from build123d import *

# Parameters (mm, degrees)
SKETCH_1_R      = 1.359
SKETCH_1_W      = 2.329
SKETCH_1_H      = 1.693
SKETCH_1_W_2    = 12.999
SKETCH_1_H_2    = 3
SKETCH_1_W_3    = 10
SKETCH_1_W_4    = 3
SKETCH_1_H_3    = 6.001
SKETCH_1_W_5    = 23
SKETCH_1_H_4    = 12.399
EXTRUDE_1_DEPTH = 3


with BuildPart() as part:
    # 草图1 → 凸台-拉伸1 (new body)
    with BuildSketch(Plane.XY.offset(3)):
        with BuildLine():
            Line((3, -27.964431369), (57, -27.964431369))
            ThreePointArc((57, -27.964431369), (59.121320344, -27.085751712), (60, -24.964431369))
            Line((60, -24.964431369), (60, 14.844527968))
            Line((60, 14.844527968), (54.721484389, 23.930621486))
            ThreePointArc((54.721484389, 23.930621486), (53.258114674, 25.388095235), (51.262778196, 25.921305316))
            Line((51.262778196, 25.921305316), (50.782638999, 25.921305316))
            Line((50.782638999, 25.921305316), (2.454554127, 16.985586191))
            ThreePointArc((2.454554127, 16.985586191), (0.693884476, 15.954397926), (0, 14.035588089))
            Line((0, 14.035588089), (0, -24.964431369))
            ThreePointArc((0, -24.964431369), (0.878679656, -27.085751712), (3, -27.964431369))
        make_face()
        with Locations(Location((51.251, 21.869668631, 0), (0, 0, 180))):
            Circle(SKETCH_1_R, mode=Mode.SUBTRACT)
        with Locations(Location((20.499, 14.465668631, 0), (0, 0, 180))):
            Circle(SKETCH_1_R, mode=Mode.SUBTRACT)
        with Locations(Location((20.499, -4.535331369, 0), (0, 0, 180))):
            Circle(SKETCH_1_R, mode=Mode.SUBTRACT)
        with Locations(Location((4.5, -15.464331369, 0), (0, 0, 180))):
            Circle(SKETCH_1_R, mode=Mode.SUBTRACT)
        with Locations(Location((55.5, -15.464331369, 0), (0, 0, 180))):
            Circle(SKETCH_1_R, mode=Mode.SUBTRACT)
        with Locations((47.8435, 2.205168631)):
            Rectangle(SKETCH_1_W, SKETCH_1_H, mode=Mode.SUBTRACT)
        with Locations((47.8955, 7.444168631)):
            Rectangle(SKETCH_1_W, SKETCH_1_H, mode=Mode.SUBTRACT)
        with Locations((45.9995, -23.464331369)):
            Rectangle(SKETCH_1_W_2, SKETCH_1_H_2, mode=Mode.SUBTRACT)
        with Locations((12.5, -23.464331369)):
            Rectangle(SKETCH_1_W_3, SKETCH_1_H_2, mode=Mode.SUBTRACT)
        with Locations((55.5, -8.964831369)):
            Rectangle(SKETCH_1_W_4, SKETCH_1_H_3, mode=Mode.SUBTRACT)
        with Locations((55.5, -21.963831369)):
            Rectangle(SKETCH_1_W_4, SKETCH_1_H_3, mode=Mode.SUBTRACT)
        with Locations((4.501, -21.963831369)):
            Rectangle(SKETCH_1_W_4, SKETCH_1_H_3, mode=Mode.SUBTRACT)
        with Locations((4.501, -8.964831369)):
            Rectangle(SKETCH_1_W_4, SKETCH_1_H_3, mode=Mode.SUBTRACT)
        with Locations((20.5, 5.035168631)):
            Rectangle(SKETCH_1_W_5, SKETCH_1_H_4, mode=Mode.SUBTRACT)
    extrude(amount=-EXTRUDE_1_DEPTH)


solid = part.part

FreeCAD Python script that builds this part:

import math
import FreeCAD as App
import Part
import Sketcher

V = App.Vector
Q = App.Units.Quantity

doc = App.newDocument("Part")
body = doc.addObject("PartDesign::Body", "Body")

sketch1 = body.newObject("Sketcher::SketchObject", "Sketch")
sketch1.AttachmentSupport = (doc.getObject("XY_Plane"), [""])
sketch1.MapMode = "FlatFace"
sketch1.AttachmentOffset = App.Placement(V(0, 0, 3), App.Rotation())
sketch1.addGeometry([
    Part.LineSegment(V(3, -27.964431, 0), V(57, -27.964431, 0)),
    Part.ArcOfCircle(Part.Circle(V(57, -24.964431, 0), V(0, 0, 1), 3), math.radians(-90), math.radians(0)),
    Part.LineSegment(V(60, -24.964431, 0), V(60, 14.844528, 0)),
    Part.LineSegment(V(60, 14.844528, 0), V(54.721484, 23.930621, 0)),
    Part.ArcOfCircle(Part.Circle(V(51.262778, 21.921305, 0), V(0, 0, 1), 4), math.radians(30.154208), math.radians(90)),
    Part.LineSegment(V(51.262778, 25.921305, 0), V(50.782639, 25.921305, 0)),
    Part.LineSegment(V(50.782639, 25.921305, 0), V(2.454554, 16.985586, 0)),
    Part.ArcOfCircle(Part.Circle(V(3, 14.035588, 0), V(0, 0, 1), 3), math.radians(100.475513), math.radians(180)),
    Part.LineSegment(V(0, 14.035588, 0), V(0, -24.964431, 0)),
    Part.ArcOfCircle(Part.Circle(V(3, -24.964431, 0), V(0, 0, 1), 3), math.radians(180), math.radians(270)),
    Part.LineSegment(V(6.001, -24.964331, 0), V(3.001, -24.964331, 0)),
    Part.LineSegment(V(3.001, -24.964331, 0), V(3.001, -18.963331, 0)),
    Part.LineSegment(V(3.001, -18.963331, 0), V(6.001, -18.963331, 0)),
    Part.LineSegment(V(6.001, -18.963331, 0), V(6.001, -24.964331, 0)),
    Part.LineSegment(V(17.5, -24.964331, 0), V(7.5, -24.964331, 0)),
    Part.LineSegment(V(7.5, -24.964331, 0), V(7.5, -21.964331, 0)),
    Part.LineSegment(V(7.5, -21.964331, 0), V(17.5, -21.964331, 0)),
    Part.LineSegment(V(17.5, -21.964331, 0), V(17.5, -24.964331, 0)),
    Part.Circle(V(4.5, -15.464331, 0), V(0, 0, 1), 1.359),
    Part.LineSegment(V(6.001, -11.965331, 0), V(3.001, -11.965331, 0)),
    Part.LineSegment(V(3.001, -11.965331, 0), V(3.001, -5.964331, 0)),
    Part.LineSegment(V(3.001, -5.964331, 0), V(6.001, -5.964331, 0)),
    Part.LineSegment(V(6.001, -5.964331, 0), V(6.001, -11.965331, 0)),
    Part.Circle(V(20.499, -4.535331, 0), V(0, 0, 1), 1.359),
    Part.LineSegment(V(52.499, -24.964331, 0), V(39.5, -24.964331, 0)),
    Part.LineSegment(V(39.5, -24.964331, 0), V(39.5, -21.964331, 0)),
    Part.LineSegment(V(39.5, -21.964331, 0), V(52.499, -21.964331, 0)),
    Part.LineSegment(V(52.499, -21.964331, 0), V(52.499, -24.964331, 0)),
    Part.LineSegment(V(57, -24.964331, 0), V(54, -24.964331, 0)),
    Part.LineSegment(V(54, -24.964331, 0), V(54, -18.963331, 0)),
    Part.LineSegment(V(54, -18.963331, 0), V(57, -18.963331, 0)),
    Part.LineSegment(V(57, -18.963331, 0), V(57, -24.964331, 0)),
    Part.Circle(V(55.5, -15.464331, 0), V(0, 0, 1), 1.359),
    Part.LineSegment(V(57, -11.965331, 0), V(54, -11.965331, 0)),
    Part.LineSegment(V(54, -11.965331, 0), V(54, -5.964331, 0)),
    Part.LineSegment(V(54, -5.964331, 0), V(57, -5.964331, 0)),
    Part.LineSegment(V(57, -5.964331, 0), V(57, -11.965331, 0)),
    Part.LineSegment(V(32, -1.164331, 0), V(9, -1.164331, 0)),
    Part.LineSegment(V(9, -1.164331, 0), V(9, 11.234669, 0)),
    Part.LineSegment(V(9, 11.234669, 0), V(32, 11.234669, 0)),
    Part.LineSegment(V(32, 11.234669, 0), V(32, -1.164331, 0)),
    Part.Circle(V(20.499, 14.465669, 0), V(0, 0, 1), 1.359),
    Part.LineSegment(V(49.008, 1.358669, 0), V(46.679, 1.358669, 0)),
    Part.LineSegment(V(46.679, 1.358669, 0), V(46.679, 3.051669, 0)),
    Part.LineSegment(V(46.679, 3.051669, 0), V(49.008, 3.051669, 0)),
    Part.LineSegment(V(49.008, 3.051669, 0), V(49.008, 1.358669, 0)),
    Part.LineSegment(V(49.06, 6.597669, 0), V(46.731, 6.597669, 0)),
    Part.LineSegment(V(46.731, 6.597669, 0), V(46.731, 8.290669, 0)),
    Part.LineSegment(V(46.731, 8.290669, 0), V(49.06, 8.290669, 0)),
    Part.LineSegment(V(49.06, 8.290669, 0), V(49.06, 6.597669, 0)),
    Part.Circle(V(51.251, 21.869669, 0), V(0, 0, 1), 1.359),
], False)
sketch1.addConstraint([
    Sketcher.Constraint("Tangent", 0, 2, 1, 1),
    Sketcher.Constraint("Tangent", 1, 2, 2, 1),
    Sketcher.Constraint("Coincident", 2, 2, 3, 1),
    Sketcher.Constraint("Tangent", 3, 2, 4, 1),
    Sketcher.Constraint("Tangent", 4, 2, 5, 1),
    Sketcher.Constraint("Coincident", 5, 2, 6, 1),
    Sketcher.Constraint("Tangent", 6, 2, 7, 1),
    Sketcher.Constraint("Tangent", 7, 2, 8, 1),
    Sketcher.Constraint("Tangent", 8, 2, 9, 1),
    Sketcher.Constraint("Tangent", 9, 2, 0, 1),
    Sketcher.Constraint("Coincident", 10, 2, 11, 1),
    Sketcher.Constraint("Coincident", 11, 2, 12, 1),
    Sketcher.Constraint("Coincident", 12, 2, 13, 1),
    Sketcher.Constraint("Coincident", 13, 2, 10, 1),
    Sketcher.Constraint("Coincident", 14, 2, 15, 1),
    Sketcher.Constraint("Coincident", 15, 2, 16, 1),
    Sketcher.Constraint("Coincident", 16, 2, 17, 1),
    Sketcher.Constraint("Coincident", 17, 2, 14, 1),
    Sketcher.Constraint("Coincident", 19, 2, 20, 1),
    Sketcher.Constraint("Coincident", 20, 2, 21, 1),
    Sketcher.Constraint("Coincident", 21, 2, 22, 1),
    Sketcher.Constraint("Coincident", 22, 2, 19, 1),
    Sketcher.Constraint("Coincident", 24, 2, 25, 1),
    Sketcher.Constraint("Coincident", 25, 2, 26, 1),
    Sketcher.Constraint("Coincident", 26, 2, 27, 1),
    Sketcher.Constraint("Coincident", 27, 2, 24, 1),
    Sketcher.Constraint("Coincident", 28, 2, 29, 1),
    Sketcher.Constraint("Coincident", 29, 2, 30, 1),
    Sketcher.Constraint("Coincident", 30, 2, 31, 1),
    Sketcher.Constraint("Coincident", 31, 2, 28, 1),
    Sketcher.Constraint("Coincident", 33, 2, 34, 1),
    Sketcher.Constraint("Coincident", 34, 2, 35, 1),
    Sketcher.Constraint("Coincident", 35, 2, 36, 1),
    Sketcher.Constraint("Coincident", 36, 2, 33, 1),
    Sketcher.Constraint("Coincident", 37, 2, 38, 1),
    Sketcher.Constraint("Coincident", 38, 2, 39, 1),
    Sketcher.Constraint("Coincident", 39, 2, 40, 1),
    Sketcher.Constraint("Coincident", 40, 2, 37, 1),
    Sketcher.Constraint("Coincident", 42, 2, 43, 1),
    Sketcher.Constraint("Coincident", 43, 2, 44, 1),
    Sketcher.Constraint("Coincident", 44, 2, 45, 1),
    Sketcher.Constraint("Coincident", 45, 2, 42, 1),
    Sketcher.Constraint("Coincident", 46, 2, 47, 1),
    Sketcher.Constraint("Coincident", 47, 2, 48, 1),
    Sketcher.Constraint("Coincident", 48, 2, 49, 1),
    Sketcher.Constraint("Coincident", 49, 2, 46, 1),
    Sketcher.Constraint("Horizontal", 0),
    Sketcher.Constraint("Vertical", 2),
    Sketcher.Constraint("Horizontal", 5),
    Sketcher.Constraint("Vertical", 8),
    Sketcher.Constraint("Horizontal", 10),
    Sketcher.Constraint("Vertical", 11),
    Sketcher.Constraint("Horizontal", 12),
    Sketcher.Constraint("Vertical", 13),
    Sketcher.Constraint("Horizontal", 14),
    Sketcher.Constraint("Vertical", 15),
    Sketcher.Constraint("Horizontal", 16),
    Sketcher.Constraint("Vertical", 17),
    Sketcher.Constraint("Horizontal", 19),
    Sketcher.Constraint("Vertical", 20),
    Sketcher.Constraint("Horizontal", 21),
    Sketcher.Constraint("Vertical", 22),
    Sketcher.Constraint("Horizontal", 24),
    Sketcher.Constraint("Vertical", 25),
    Sketcher.Constraint("Horizontal", 26),
    Sketcher.Constraint("Vertical", 27),
    Sketcher.Constraint("Horizontal", 28),
    Sketcher.Constraint("Vertical", 29),
    Sketcher.Constraint("Horizontal", 30),
    Sketcher.Constraint("Vertical", 31),
    Sketcher.Constraint("Horizontal", 33),
    Sketcher.Constraint("Vertical", 34),
    Sketcher.Constraint("Horizontal", 35),
    Sketcher.Constraint("Vertical", 36),
    Sketcher.Constraint("Horizontal", 37),
    Sketcher.Constraint("Vertical", 38),
    Sketcher.Constraint("Horizontal", 39),
    Sketcher.Constraint("Vertical", 40),
    Sketcher.Constraint("Horizontal", 42),
    Sketcher.Constraint("Vertical", 43),
    Sketcher.Constraint("Horizontal", 44),
    Sketcher.Constraint("Vertical", 45),
    Sketcher.Constraint("Horizontal", 46),
    Sketcher.Constraint("Vertical", 47),
    Sketcher.Constraint("Horizontal", 48),
    Sketcher.Constraint("Vertical", 49),
    Sketcher.Constraint("Equal", 1, 7),
    Sketcher.Constraint("Equal", 7, 9),
    Sketcher.Constraint("Equal", 18, 23),
    Sketcher.Constraint("Equal", 23, 32),
    Sketcher.Constraint("Equal", 32, 41),
    Sketcher.Constraint("Equal", 41, 50),
    Sketcher.Constraint("PointOnObject", 7, 2, -2),
    Sketcher.Constraint("Horizontal", 18, 3, 32, 3),
    Sketcher.Constraint("Horizontal", 13, 2, 14, 2),
    Sketcher.Constraint("Horizontal", 17, 2, 24, 2),
    Sketcher.Constraint("Horizontal", 16, 2, 25, 2),
    Sketcher.Constraint("Horizontal", 27, 2, 28, 2),
    Sketcher.Constraint("Horizontal", 12, 2, 29, 2),
    Sketcher.Constraint("Horizontal", 22, 2, 33, 2),
    Sketcher.Constraint("Horizontal", 21, 2, 34, 2),
    Sketcher.Constraint("Vertical", 23, 3, 41, 3),
    Sketcher.Constraint("Vertical", 11, 2, 19, 2),
    Sketcher.Constraint("Vertical", 13, 2, 21, 2),
    Sketcher.Constraint("Vertical", 0, 2, 30, 2),
    Sketcher.Constraint("Vertical", 29, 2, 33, 2),
    Sketcher.Constraint("Vertical", 31, 2, 35, 2),
    Sketcher.Constraint("Equal", 21, 28),
    Sketcher.Constraint("Equal", 44, 46),
    Sketcher.Constraint("Equal", 35, 15),
    Sketcher.Constraint("Equal", 13, 20),
    Sketcher.Constraint("Equal", 45, 47),
    Sketcher.Constraint("Radius", 1, Q("3 mm")),
    Sketcher.Constraint("Radius", 4, Q("4 mm")),
    Sketcher.Constraint("DistanceX", 0, 1, 0, 2, Q("54 mm")),
    Sketcher.Constraint("DistanceX", 10, 2, 10, 1, Q("3 mm")),
    Sketcher.Constraint("DistanceX", 14, 2, 14, 1, Q("10 mm")),
    Sketcher.Constraint("DistanceX", 37, 2, 37, 1, Q("23 mm")),
    Sketcher.Constraint("Diameter", 18, Q("2.718 mm")),
    Sketcher.Constraint("DistanceX", -1, 1, 37, 2, Q("9 mm")),
    Sketcher.Constraint("DistanceX", 18, 3, 32, 3, Q("51 mm")),
    Sketcher.Constraint("DistanceX", 18, 3, 16, 2, Q("13 mm")),
    Sketcher.Constraint("DistanceY", 15, 2, 20, 2, Q("16 mm")),
    Sketcher.Constraint("DistanceX", 24, 2, 32, 3, Q("16 mm")),
    Sketcher.Constraint("DistanceX", -1, 1, 18, 3, Q("4.5 mm")),
    Sketcher.Constraint("DistanceY", 10, 2, 18, 3, Q("9.5 mm")),
    Sketcher.Constraint("DistanceY", 21, 2, 37, 2, Q("4.8 mm")),
    Sketcher.Constraint("DistanceX", 24, 2, 24, 1, Q("12.999 mm")),
    Sketcher.Constraint("DistanceX", 42, 2, 42, 1, Q("2.329 mm")),
    Sketcher.Constraint("DistanceY", 11, 1, 11, 2, Q("6.001 mm")),
    Sketcher.Constraint("DistanceY", 38, 1, 38, 2, Q("12.399 mm")),
    Sketcher.Constraint("DistanceY", 43, 1, 43, 2, Q("1.693 mm")),
    Sketcher.Constraint("DistanceX", -1, 1, 48, 2, Q("49.06 mm")),
    Sketcher.Constraint("DistanceY", 18, 3, 41, 3, Q("29.93 mm")),
    Sketcher.Constraint("DistanceY", 7, 3, 6, 2, Q("2.949998 mm")),
    Sketcher.Constraint("DistanceY", 23, 3, 39, 2, Q("15.77 mm")),
    Sketcher.Constraint("DistanceX", -1, 1, 23, 3, Q("20.499 mm")),
    Sketcher.Constraint("DistanceX", -1, 1, 50, 3, Q("51.251 mm")),
    Sketcher.Constraint("DistanceX", -1, 1, 10, 2, Q("3.001 mm")),
    Sketcher.Constraint("DistanceX", -1, 1, 42, 2, Q("46.679 mm")),
    Sketcher.Constraint("DistanceY", 41, 3, 50, 3, Q("7.404 mm")),
    Sketcher.Constraint("DistanceY", 34, 2, 42, 2, Q("7.323 mm")),
    Sketcher.Constraint("DistanceY", 43, 2, 46, 2, Q("3.546 mm")),
    Sketcher.Constraint("DistanceX", 5, 2, 5, 1, Q("0.480139 mm")),
    Sketcher.Constraint("DistanceY", 2, 1, 2, 2, Q("39.808959 mm")),
    Sketcher.Constraint("DistanceY", 8, 2, 8, 1, Q("39.000019 mm")),
    Sketcher.Constraint("DistanceY", 9, 3, 18, 3, Q("9.5001 mm")),
    Sketcher.Constraint("DistanceY", 1, 3, -1, 1, Q("24.964431 mm")),
    Sketcher.Constraint("DistanceX", -1, 1, 4, 3, Q("51.262778 mm")),
])
pad1 = body.newObject("PartDesign::Pad", "Pad")
pad1.Profile = sketch1
pad1.Length = 3
pad1.Reversed = True

doc.recompute()
